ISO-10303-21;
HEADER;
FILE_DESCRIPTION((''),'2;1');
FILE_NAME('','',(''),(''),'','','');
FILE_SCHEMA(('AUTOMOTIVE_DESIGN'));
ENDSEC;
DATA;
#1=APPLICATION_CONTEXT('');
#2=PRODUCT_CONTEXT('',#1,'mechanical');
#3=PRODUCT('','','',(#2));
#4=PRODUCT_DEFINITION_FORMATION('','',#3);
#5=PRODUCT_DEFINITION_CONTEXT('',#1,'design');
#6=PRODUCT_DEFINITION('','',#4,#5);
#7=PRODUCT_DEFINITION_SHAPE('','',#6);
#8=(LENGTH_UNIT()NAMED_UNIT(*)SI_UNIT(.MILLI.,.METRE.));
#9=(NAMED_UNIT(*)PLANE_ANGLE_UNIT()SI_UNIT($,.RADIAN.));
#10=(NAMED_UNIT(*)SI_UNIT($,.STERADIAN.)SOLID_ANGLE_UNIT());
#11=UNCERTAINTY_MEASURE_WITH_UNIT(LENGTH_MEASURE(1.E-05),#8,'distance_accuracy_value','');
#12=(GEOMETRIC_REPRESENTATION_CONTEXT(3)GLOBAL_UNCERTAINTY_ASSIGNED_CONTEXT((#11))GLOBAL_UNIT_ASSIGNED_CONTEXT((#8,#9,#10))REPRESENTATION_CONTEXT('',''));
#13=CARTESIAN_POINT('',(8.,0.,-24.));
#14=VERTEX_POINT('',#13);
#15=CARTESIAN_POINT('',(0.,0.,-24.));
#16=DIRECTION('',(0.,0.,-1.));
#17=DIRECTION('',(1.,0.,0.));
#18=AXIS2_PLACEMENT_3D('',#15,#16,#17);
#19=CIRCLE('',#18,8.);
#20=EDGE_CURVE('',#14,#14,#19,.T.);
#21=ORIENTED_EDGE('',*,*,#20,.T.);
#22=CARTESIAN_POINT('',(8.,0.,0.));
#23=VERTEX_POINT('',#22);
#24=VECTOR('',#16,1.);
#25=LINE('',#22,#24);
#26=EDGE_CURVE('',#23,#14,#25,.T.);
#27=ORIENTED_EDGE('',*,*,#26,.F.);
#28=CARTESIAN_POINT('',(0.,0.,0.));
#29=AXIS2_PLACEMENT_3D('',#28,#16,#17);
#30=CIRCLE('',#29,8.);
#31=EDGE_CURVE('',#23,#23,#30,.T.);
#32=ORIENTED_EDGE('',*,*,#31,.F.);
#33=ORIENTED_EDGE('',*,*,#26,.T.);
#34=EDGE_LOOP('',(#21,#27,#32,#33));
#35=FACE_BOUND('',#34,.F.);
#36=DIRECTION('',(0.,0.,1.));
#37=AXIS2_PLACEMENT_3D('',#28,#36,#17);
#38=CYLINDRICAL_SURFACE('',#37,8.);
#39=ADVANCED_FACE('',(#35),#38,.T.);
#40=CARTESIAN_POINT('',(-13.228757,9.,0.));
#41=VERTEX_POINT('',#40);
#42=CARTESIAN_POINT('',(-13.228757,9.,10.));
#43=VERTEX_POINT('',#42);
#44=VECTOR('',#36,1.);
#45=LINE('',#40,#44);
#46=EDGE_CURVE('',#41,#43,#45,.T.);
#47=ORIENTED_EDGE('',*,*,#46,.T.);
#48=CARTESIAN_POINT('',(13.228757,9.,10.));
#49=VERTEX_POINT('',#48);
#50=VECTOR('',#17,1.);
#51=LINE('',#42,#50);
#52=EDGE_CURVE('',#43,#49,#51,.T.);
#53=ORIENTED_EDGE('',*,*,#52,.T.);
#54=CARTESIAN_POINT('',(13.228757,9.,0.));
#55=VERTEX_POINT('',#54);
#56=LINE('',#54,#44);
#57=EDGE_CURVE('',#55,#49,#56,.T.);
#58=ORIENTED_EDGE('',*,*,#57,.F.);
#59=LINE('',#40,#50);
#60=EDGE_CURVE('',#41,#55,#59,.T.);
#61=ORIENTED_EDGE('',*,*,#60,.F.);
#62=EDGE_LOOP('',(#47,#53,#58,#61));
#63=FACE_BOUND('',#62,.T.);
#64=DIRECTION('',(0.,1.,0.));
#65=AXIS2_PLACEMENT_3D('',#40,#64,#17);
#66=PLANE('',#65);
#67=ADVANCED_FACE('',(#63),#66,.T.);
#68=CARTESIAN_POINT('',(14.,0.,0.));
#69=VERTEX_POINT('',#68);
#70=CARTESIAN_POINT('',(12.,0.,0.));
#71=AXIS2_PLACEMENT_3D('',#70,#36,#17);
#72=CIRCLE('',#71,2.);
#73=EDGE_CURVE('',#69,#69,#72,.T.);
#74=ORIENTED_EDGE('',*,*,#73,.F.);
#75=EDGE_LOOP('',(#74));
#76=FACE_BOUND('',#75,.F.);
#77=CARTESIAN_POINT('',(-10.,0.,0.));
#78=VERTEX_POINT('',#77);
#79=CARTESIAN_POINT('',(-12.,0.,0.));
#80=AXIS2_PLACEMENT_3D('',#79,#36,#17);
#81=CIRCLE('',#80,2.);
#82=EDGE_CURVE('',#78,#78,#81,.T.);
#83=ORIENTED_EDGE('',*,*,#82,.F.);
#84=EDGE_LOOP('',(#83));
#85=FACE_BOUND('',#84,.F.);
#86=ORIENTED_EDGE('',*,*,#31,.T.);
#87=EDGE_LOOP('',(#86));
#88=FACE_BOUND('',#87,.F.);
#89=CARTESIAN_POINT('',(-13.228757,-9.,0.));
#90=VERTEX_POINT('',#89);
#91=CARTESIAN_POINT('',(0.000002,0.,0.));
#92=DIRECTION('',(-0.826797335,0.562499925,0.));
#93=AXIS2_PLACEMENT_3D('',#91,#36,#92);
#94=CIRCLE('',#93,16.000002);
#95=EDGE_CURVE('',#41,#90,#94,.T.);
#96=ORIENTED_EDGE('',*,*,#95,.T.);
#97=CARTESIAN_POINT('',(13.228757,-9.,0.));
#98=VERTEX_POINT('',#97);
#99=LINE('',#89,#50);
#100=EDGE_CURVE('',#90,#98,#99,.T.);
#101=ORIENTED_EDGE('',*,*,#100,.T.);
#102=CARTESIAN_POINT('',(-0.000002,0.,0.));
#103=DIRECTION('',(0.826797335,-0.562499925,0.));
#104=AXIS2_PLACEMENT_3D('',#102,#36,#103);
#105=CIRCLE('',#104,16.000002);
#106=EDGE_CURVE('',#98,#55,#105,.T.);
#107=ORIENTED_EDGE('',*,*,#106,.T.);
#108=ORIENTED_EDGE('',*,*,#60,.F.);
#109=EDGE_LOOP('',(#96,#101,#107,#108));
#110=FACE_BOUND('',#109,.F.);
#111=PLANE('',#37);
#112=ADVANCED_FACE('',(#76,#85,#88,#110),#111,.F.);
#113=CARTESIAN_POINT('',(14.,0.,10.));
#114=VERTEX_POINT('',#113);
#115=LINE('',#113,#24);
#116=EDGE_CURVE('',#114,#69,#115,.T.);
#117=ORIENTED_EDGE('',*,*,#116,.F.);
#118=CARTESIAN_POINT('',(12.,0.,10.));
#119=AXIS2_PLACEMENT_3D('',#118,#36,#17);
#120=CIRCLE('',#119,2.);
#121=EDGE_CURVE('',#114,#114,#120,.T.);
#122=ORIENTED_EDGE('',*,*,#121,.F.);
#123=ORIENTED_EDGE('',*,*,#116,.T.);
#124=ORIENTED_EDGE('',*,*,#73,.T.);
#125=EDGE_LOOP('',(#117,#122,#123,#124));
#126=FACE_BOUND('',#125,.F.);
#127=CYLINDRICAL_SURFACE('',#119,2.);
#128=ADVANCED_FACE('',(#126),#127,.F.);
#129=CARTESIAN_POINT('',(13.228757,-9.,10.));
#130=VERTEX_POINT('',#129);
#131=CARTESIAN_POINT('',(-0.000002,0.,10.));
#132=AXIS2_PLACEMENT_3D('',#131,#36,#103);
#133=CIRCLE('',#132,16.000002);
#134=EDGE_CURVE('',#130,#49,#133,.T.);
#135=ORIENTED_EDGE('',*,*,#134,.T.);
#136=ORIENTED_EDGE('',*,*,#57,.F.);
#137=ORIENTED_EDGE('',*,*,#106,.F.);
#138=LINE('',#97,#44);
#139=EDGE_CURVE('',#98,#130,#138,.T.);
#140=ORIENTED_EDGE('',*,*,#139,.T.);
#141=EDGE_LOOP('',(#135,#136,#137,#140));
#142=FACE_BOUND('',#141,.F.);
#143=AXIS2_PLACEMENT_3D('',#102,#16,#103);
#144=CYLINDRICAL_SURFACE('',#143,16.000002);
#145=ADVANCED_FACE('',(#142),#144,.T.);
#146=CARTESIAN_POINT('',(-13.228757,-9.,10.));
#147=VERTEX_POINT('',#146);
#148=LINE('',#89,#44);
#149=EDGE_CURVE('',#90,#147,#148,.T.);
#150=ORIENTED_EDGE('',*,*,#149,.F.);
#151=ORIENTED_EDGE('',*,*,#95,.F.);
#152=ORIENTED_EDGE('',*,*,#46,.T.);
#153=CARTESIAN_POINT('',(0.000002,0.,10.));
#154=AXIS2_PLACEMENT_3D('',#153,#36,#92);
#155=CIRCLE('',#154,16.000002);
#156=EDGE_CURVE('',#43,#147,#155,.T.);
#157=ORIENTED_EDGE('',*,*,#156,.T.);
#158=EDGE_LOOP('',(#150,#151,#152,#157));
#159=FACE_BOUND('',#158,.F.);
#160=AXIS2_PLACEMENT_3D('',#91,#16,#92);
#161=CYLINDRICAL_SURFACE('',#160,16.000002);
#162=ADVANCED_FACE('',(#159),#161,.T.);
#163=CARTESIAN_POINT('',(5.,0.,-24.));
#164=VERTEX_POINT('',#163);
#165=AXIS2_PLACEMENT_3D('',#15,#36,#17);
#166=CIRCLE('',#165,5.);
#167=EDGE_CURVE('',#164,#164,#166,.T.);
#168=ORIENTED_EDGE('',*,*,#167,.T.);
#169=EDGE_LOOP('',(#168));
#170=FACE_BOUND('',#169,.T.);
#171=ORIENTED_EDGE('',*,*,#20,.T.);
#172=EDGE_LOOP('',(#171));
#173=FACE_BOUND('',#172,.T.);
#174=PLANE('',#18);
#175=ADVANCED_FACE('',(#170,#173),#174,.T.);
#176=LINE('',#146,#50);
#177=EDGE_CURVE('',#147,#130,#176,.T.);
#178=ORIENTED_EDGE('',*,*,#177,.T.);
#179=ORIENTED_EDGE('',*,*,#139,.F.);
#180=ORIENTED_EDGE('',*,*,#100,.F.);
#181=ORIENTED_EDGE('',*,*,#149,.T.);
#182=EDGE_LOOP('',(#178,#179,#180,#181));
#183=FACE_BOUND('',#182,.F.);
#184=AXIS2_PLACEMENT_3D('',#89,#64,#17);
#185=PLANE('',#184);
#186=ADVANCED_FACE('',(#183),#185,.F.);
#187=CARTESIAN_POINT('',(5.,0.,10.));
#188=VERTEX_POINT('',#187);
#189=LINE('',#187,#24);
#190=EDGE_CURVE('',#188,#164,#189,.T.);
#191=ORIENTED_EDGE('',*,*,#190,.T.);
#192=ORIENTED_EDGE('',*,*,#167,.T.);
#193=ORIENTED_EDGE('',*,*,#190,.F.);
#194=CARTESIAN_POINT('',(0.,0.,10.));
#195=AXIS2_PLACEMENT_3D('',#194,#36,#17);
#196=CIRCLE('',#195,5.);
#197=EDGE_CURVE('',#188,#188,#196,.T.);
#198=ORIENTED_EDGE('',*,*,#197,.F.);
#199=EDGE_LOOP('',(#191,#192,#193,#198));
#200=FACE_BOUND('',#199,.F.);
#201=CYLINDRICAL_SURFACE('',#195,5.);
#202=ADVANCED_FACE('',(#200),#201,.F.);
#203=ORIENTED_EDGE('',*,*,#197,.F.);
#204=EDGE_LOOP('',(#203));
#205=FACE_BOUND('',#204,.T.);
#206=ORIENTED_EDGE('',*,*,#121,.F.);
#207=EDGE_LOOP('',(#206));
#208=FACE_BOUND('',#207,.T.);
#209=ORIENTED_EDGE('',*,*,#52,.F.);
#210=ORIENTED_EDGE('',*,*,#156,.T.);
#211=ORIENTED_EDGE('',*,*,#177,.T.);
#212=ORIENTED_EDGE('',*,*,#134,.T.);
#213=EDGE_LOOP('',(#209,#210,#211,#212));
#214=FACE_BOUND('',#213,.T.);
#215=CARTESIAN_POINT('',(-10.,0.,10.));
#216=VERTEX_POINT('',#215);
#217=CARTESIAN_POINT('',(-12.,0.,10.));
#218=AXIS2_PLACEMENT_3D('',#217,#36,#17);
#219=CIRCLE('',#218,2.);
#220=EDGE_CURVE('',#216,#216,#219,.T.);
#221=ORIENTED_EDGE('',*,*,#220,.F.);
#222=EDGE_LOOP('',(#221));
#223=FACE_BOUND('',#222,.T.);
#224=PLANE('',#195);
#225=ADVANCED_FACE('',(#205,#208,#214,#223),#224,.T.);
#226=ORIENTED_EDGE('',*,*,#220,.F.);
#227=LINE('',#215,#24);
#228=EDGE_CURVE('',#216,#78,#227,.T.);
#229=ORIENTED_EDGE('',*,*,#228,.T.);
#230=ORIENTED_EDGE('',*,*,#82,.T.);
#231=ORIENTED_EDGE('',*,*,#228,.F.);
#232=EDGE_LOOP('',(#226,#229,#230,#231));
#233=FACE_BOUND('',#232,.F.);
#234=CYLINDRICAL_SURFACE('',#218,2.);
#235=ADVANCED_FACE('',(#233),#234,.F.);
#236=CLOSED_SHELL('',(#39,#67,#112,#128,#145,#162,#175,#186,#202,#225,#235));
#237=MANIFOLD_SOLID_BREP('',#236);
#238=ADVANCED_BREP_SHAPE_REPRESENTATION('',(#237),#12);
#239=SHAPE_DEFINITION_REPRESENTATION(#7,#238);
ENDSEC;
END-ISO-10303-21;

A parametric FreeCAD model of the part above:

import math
import FreeCAD as App
import Part
import Sketcher
from FreeCAD import Vector

doc = App.newDocument("Part")
body = doc.addObject("PartDesign::Body", "Body")

# Sketch on XY plane
sketch1 = body.newObject("Sketcher::SketchObject", "Sketch")
sketch1.AttachmentSupport = (doc.getObject("XY_Plane"), [""])
sketch1.MapMode = "FlatFace"
sketch1.addGeometry([
    Part.ArcOfCircle(Part.Circle(Vector(0, 0, 0), Vector(0, 0, 1), 16), math.radians(146), math.radians(214)),
    Part.LineSegment(Vector(-13, -9, 0), Vector(13, -9, 0)),
    Part.ArcOfCircle(Part.Circle(Vector(0, 0, 0), Vector(0, 0, 1), 16), math.radians(-34), math.radians(34)),
    Part.LineSegment(Vector(13, 9, 0), Vector(-13, 9, 0)),
], False)
sketch1.addConstraint([
    Sketcher.Constraint("Coincident", 0, 2, 1, 1),
    Sketcher.Constraint("Coincident", 1, 2, 2, 1),
    Sketcher.Constraint("Coincident", 2, 2, 3, 1),
    Sketcher.Constraint("Coincident", 3, 2, 0, 1),
    Sketcher.Constraint("Horizontal", 1),
    Sketcher.Constraint("Horizontal", 3),
    Sketcher.Constraint("Coincident", 0, 3, -1, 1),
    Sketcher.Constraint("Coincident", 2, 3, -1, 1),
    Sketcher.Constraint("Equal", 0, 2),
    Sketcher.Constraint("Vertical", 1, 2, 2, 2),
    Sketcher.Constraint("DistanceY", 0, 2, -1, 1, 9.0),
    Sketcher.Constraint("Radius", 0, 16.000002),
])
pad1 = body.newObject("PartDesign::Pad", "Pad")
pad1.Profile = sketch1
pad1.Length = 10

# Sketch on XY plane
sketch2 = body.newObject("Sketcher::SketchObject", "Sketch001")
sketch2.AttachmentSupport = (doc.getObject("XY_Plane"), [""])
sketch2.MapMode = "FlatFace"
sketch2.addGeometry(Part.Circle(Vector(0, 0, 0), Vector(0, 0, 1), 8), False)
sketch2.addConstraint([
    Sketcher.Constraint("Coincident", 0, 3, -1, 1),
    Sketcher.Constraint("Diameter", 0, 16.0),
])
pad2 = body.newObject("PartDesign::Pad", "Pad001")
pad2.Profile = sketch2
pad2.Length = 24
pad2.Reversed = True

# Sketch on XY plane
sketch3 = body.newObject("Sketcher::SketchObject", "Sketch002")
sketch3.AttachmentSupport = (doc.getObject("XY_Plane"), [""])
sketch3.MapMode = "FlatFace"
sketch3.AttachmentOffset = App.Placement(Vector(0, 0, 10), App.Rotation())
sketch3.addGeometry([
    Part.Circle(Vector(0, 0, 0), Vector(0, 0, 1), 5),
    Part.Circle(Vector(12, 0, 0), Vector(0, 0, 1), 2),
    Part.Circle(Vector(-12, 0, 0), Vector(0, 0, 1), 2),
], False)
sketch3.addConstraint([
    Sketcher.Constraint("Coincident", 0, 3, -1, 1),
    Sketcher.Constraint("Equal", 1, 2),
    Sketcher.Constraint("Symmetric", 1, 3, 2, 3, -1, 1),
    Sketcher.Constraint("PointOnObject", 1, 3, -1),
    Sketcher.Constraint("Diameter", 0, 10.0),
    Sketcher.Constraint("Diameter", 1, 4.0),
    Sketcher.Constraint("DistanceX", -1, 1, 1, 3, 12.0),
])
pocket1 = body.newObject("PartDesign::Pocket", "Pocket")
pocket1.Profile = sketch3
pocket1.Type = "ThroughAll"

doc.recompute()
